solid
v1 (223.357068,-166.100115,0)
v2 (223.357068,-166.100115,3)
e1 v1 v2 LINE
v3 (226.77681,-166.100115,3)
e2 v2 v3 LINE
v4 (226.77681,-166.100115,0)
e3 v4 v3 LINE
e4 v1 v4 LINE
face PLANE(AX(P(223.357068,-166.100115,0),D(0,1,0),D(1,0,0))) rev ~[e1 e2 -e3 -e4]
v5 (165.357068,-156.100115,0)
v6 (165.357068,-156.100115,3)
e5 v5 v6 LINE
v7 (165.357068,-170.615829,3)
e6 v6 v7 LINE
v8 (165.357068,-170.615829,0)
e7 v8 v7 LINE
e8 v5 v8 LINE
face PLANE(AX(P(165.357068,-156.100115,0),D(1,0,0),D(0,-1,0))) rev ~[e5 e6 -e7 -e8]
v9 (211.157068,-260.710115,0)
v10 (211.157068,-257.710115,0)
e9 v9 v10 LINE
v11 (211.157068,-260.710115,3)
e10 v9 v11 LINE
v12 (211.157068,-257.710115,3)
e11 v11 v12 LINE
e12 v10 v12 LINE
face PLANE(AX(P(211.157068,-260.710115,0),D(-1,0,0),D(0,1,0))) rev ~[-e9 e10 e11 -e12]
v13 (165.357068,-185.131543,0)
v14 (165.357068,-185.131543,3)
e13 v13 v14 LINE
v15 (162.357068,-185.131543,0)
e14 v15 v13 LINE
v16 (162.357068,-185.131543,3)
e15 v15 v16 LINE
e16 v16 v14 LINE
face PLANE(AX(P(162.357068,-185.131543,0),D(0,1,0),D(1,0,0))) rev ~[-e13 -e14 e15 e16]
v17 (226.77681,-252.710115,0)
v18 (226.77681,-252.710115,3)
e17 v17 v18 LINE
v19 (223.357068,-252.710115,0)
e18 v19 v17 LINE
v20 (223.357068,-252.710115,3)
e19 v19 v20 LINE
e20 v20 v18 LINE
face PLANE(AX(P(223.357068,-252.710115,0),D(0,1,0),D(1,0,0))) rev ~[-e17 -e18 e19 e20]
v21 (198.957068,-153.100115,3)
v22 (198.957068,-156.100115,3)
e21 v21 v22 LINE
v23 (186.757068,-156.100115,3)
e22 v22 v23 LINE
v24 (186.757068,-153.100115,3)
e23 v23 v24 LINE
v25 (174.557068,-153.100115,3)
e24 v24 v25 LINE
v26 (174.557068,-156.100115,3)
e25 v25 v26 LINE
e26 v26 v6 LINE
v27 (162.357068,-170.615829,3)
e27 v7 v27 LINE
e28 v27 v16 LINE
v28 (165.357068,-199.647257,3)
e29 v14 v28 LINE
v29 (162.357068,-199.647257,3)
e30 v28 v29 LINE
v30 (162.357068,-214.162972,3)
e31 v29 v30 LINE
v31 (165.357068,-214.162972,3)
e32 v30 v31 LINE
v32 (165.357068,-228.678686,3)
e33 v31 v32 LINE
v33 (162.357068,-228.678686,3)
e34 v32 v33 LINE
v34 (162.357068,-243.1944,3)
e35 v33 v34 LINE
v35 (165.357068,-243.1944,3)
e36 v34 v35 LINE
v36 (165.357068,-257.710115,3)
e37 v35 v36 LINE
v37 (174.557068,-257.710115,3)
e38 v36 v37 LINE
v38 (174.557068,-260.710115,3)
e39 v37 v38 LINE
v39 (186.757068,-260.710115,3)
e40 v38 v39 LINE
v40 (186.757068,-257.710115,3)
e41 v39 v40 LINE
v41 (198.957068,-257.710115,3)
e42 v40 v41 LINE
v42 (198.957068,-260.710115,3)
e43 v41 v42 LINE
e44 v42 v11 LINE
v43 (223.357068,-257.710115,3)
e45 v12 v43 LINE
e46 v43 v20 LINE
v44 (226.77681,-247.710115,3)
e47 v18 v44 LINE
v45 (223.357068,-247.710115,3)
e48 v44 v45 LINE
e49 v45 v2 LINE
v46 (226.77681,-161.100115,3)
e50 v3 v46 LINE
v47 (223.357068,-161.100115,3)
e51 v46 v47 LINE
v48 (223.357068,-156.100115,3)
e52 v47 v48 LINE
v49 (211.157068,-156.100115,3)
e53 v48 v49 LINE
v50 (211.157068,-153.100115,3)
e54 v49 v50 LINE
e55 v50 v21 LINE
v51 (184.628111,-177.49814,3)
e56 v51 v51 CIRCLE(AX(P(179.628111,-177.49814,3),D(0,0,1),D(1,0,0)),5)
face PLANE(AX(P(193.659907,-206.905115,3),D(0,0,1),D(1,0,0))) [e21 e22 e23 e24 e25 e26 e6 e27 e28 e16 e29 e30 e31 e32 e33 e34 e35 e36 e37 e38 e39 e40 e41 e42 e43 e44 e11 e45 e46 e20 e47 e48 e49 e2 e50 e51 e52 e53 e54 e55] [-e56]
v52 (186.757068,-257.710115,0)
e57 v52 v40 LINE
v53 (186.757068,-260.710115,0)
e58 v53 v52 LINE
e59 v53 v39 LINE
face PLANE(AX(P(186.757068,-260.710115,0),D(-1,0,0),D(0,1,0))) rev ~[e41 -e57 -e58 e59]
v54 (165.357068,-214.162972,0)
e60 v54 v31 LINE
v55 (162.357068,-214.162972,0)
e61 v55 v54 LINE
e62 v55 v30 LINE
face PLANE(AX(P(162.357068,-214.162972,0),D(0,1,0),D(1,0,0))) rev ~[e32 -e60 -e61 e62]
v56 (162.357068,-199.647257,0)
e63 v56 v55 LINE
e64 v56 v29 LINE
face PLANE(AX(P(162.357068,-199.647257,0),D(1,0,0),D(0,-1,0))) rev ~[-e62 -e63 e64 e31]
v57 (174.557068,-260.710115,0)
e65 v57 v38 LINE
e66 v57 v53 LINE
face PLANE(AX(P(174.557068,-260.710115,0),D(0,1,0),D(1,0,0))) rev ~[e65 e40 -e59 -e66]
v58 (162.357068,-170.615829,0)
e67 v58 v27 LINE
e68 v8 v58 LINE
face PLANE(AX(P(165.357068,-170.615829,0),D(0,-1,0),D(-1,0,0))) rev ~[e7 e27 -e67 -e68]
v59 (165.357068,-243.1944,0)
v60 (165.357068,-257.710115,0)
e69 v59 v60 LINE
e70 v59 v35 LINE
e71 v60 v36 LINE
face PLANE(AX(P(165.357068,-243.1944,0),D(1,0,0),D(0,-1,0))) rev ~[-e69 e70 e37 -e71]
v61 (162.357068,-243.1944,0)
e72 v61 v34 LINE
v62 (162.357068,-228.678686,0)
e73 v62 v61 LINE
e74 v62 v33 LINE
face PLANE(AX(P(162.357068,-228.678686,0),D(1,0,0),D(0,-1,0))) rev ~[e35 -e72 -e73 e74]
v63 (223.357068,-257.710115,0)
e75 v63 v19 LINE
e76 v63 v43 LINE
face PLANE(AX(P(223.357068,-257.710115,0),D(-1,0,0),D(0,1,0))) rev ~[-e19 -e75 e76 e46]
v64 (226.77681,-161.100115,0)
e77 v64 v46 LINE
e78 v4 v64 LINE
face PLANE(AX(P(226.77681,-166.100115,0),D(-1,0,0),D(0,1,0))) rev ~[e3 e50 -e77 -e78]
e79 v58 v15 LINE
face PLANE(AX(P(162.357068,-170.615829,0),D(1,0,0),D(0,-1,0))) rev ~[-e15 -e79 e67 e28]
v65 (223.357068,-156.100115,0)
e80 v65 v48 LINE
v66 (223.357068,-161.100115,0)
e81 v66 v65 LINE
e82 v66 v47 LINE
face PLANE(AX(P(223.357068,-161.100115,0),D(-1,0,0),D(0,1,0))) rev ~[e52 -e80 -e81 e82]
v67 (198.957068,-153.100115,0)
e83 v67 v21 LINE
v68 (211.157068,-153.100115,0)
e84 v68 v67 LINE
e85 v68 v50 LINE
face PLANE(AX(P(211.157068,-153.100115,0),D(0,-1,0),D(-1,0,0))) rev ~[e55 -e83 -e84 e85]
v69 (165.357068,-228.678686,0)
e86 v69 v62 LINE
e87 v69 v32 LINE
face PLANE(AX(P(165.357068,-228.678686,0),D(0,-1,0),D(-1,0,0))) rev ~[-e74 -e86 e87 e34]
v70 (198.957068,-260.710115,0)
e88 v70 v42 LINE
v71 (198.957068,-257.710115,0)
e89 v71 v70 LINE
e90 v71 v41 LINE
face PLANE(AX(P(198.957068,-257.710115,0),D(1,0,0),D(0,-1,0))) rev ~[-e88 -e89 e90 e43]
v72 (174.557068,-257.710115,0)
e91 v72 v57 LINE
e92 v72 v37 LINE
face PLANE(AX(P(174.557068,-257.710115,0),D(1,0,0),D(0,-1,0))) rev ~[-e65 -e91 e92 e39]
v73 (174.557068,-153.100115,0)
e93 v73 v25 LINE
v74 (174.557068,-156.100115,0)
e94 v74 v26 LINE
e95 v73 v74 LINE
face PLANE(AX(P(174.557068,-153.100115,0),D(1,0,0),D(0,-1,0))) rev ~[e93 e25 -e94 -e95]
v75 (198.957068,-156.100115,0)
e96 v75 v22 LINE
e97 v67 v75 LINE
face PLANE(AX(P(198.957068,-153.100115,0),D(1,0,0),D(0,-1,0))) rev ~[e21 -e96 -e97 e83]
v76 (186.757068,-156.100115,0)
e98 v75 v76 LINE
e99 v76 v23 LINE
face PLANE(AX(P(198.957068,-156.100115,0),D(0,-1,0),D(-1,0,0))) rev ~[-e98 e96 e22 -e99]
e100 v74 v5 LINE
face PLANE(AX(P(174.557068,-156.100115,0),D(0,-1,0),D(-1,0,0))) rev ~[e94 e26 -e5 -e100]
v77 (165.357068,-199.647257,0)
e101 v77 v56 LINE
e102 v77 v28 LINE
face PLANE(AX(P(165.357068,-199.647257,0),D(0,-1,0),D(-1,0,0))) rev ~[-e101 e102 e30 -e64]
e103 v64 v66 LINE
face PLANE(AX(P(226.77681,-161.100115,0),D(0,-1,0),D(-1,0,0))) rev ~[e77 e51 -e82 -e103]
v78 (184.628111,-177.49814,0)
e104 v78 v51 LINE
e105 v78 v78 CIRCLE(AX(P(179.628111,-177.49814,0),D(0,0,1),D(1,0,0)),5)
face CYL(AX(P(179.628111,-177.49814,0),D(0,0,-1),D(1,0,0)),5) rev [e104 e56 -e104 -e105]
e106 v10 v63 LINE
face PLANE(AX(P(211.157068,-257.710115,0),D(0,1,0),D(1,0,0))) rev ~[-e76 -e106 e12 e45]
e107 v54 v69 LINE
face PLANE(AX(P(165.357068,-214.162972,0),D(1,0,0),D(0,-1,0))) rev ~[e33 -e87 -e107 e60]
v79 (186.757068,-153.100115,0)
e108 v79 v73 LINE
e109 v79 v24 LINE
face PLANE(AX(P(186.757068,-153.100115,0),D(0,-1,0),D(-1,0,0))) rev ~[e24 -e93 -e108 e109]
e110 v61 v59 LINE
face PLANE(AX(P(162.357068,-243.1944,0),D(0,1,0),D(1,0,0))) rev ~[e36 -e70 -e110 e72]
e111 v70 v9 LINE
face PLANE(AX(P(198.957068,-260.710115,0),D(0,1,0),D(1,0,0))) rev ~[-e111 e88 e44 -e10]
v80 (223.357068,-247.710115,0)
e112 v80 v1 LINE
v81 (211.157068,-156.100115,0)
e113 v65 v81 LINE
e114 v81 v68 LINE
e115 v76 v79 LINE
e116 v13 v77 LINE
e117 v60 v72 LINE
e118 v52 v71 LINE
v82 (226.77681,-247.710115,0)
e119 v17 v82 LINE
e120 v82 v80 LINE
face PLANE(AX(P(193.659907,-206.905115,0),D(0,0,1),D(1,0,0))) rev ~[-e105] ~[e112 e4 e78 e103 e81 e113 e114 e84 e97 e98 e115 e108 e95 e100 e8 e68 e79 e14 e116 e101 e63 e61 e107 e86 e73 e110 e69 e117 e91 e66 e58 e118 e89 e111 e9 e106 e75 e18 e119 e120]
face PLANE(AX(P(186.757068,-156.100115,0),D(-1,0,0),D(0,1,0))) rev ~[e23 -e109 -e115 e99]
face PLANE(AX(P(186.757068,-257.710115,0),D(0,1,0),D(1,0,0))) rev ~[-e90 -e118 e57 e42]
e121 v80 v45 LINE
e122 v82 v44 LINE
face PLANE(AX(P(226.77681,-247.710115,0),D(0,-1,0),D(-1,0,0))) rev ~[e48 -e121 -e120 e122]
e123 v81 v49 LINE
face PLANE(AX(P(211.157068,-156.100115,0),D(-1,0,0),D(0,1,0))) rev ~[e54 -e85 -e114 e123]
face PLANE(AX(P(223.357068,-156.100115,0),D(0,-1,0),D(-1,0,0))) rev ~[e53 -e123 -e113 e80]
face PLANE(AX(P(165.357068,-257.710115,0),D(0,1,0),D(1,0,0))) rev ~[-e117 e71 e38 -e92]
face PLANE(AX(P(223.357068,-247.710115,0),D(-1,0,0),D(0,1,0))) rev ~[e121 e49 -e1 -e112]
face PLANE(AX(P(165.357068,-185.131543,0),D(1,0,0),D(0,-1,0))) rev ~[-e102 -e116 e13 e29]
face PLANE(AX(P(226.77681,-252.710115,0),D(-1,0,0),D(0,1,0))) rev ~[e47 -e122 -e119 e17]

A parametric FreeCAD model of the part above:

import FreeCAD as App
import Part
import Sketcher

V = App.Vector
Q = App.Units.Quantity

doc = App.newDocument("Part")
body = doc.addObject("PartDesign::Body", "Body")

# Sketch on XY plane
sketch1 = body.newObject("Sketcher::SketchObject", "Sketch")
sketch1.AttachmentSupport = (doc.getObject("XY_Plane"), [""])
sketch1.MapMode = "FlatFace"
sketch1.addGeometry([
    Part.LineSegment(V(174.557068, -156.100115, 0), V(165.357068, -156.100115, 0)),  # 0
    Part.LineSegment(V(165.357068, -156.100115, 0), V(165.357068, -170.615829, 0)),  # 1
    Part.LineSegment(V(165.357068, -170.615829, 0), V(162.357068, -170.615829, 0)),  # 2
    Part.LineSegment(V(162.357068, -170.615829, 0), V(162.357068, -185.131543, 0)),  # 3
    Part.LineSegment(V(162.357068, -185.131543, 0), V(165.357068, -185.131543, 0)),  # 4
    Part.LineSegment(V(165.357068, -185.131543, 0), V(165.357068, -199.647257, 0)),  # 5
    Part.LineSegment(V(165.357068, -199.647257, 0), V(162.357068, -199.647257, 0)),  # 6
    Part.LineSegment(V(162.357068, -199.647257, 0), V(162.357068, -214.162972, 0)),  # 7
    Part.LineSegment(V(162.357068, -214.162972, 0), V(165.357068, -214.162972, 0)),  # 8
    Part.LineSegment(V(165.357068, -214.162972, 0), V(165.357068, -228.678686, 0)),  # 9
    Part.LineSegment(V(165.357068, -228.678686, 0), V(162.357068, -228.678686, 0)),  # 10
    Part.LineSegment(V(162.357068, -228.678686, 0), V(162.357068, -243.1944, 0)),  # 11
    Part.LineSegment(V(162.357068, -243.1944, 0), V(165.357068, -243.1944, 0)),  # 12
    Part.LineSegment(V(165.357068, -243.1944, 0), V(165.357068, -257.710115, 0)),  # 13
    Part.LineSegment(V(165.357068, -257.710115, 0), V(174.557068, -257.710115, 0)),  # 14
    Part.LineSegment(V(174.557068, -257.710115, 0), V(174.557068, -260.710115, 0)),  # 15
    Part.LineSegment(V(174.557068, -260.710115, 0), V(186.757068, -260.710115, 0)),  # 16
    Part.LineSegment(V(186.757068, -260.710115, 0), V(186.757068, -257.710115, 0)),  # 17
    Part.LineSegment(V(186.757068, -257.710115, 0), V(198.957068, -257.710115, 0)),  # 18
    Part.LineSegment(V(198.957068, -257.710115, 0), V(198.957068, -260.710115, 0)),  # 19
    Part.LineSegment(V(198.957068, -260.710115, 0), V(211.157068, -260.710115, 0)),  # 20
    Part.LineSegment(V(211.157068, -260.710115, 0), V(211.157068, -257.710115, 0)),  # 21
    Part.LineSegment(V(211.157068, -257.710115, 0), V(223.357068, -257.710115, 0)),  # 22
    Part.LineSegment(V(223.357068, -257.710115, 0), V(223.357068, -252.710115, 0)),  # 23
    Part.LineSegment(V(223.357068, -252.710115, 0), V(226.77681, -252.710115, 0)),  # 24
    Part.LineSegment(V(226.77681, -252.710115, 0), V(226.77681, -247.710115, 0)),  # 25
    Part.LineSegment(V(226.77681, -247.710115, 0), V(223.357068, -247.710115, 0)),  # 26
    Part.LineSegment(V(223.357068, -247.710115, 0), V(223.357068, -166.100115, 0)),  # 27
    Part.LineSegment(V(223.357068, -166.100115, 0), V(226.77681, -166.100115, 0)),  # 28
    Part.LineSegment(V(226.77681, -166.100115, 0), V(226.77681, -161.100115, 0)),  # 29
    Part.LineSegment(V(226.77681, -161.100115, 0), V(223.357068, -161.100115, 0)),  # 30
    Part.LineSegment(V(223.357068, -161.100115, 0), V(223.357068, -156.100115, 0)),  # 31
    Part.LineSegment(V(223.357068, -156.100115, 0), V(211.157068, -156.100115, 0)),  # 32
    Part.LineSegment(V(211.157068, -156.100115, 0), V(211.157068, -153.100115, 0)),  # 33
    Part.LineSegment(V(211.157068, -153.100115, 0), V(198.957068, -153.100115, 0)),  # 34
    Part.LineSegment(V(198.957068, -153.100115, 0), V(198.957068, -156.100115, 0)),  # 35
    Part.LineSegment(V(198.957068, -156.100115, 0), V(186.757068, -156.100115, 0)),  # 36
    Part.LineSegment(V(186.757068, -156.100115, 0), V(186.757068, -153.100115, 0)),  # 37
    Part.LineSegment(V(186.757068, -153.100115, 0), V(174.557068, -153.100115, 0)),  # 38
    Part.LineSegment(V(174.557068, -153.100115, 0), V(174.557068, -156.100115, 0)),  # 39
    Part.Circle(V(179.628111, -177.49814, 0), V(0, 0, 1), 5),  # 40
], False)
sketch1.addConstraint([
    Sketcher.Constraint("Coincident", 0, 2, 1, 1),
    Sketcher.Constraint("Coincident", 1, 2, 2, 1),
    Sketcher.Constraint("Coincident", 2, 2, 3, 1),
    Sketcher.Constraint("Coincident", 3, 2, 4, 1),
    Sketcher.Constraint("Coincident", 4, 2, 5, 1),
    Sketcher.Constraint("Coincident", 5, 2, 6, 1),
    Sketcher.Constraint("Coincident", 6, 2, 7, 1),
    Sketcher.Constraint("Coincident", 7, 2, 8, 1),
    Sketcher.Constraint("Coincident", 8, 2, 9, 1),
    Sketcher.Constraint("Coincident", 9, 2, 10, 1),
    Sketcher.Constraint("Coincident", 10, 2, 11, 1),
    Sketcher.Constraint("Coincident", 11, 2, 12, 1),
    Sketcher.Constraint("Coincident", 12, 2, 13, 1),
    Sketcher.Constraint("Coincident", 13, 2, 14, 1),
    Sketcher.Constraint("Coincident", 14, 2, 15, 1),
    Sketcher.Constraint("Coincident", 15, 2, 16, 1),
    Sketcher.Constraint("Coincident", 16, 2, 17, 1),
    Sketcher.Constraint("Coincident", 17, 2, 18, 1),
    Sketcher.Constraint("Coincident", 18, 2, 19, 1),
    Sketcher.Constraint("Coincident", 19, 2, 20, 1),
    Sketcher.Constraint("Coincident", 20, 2, 21, 1),
    Sketcher.Constraint("Coincident", 21, 2, 22, 1),
    Sketcher.Constraint("Coincident", 22, 2, 23, 1),
    Sketcher.Constraint("Coincident", 23, 2, 24, 1),
    Sketcher.Constraint("Coincident", 24, 2, 25, 1),
    Sketcher.Constraint("Coincident", 25, 2, 26, 1),
    Sketcher.Constraint("Coincident", 26, 2, 27, 1),
    Sketcher.Constraint("Coincident", 27, 2, 28, 1),
    Sketcher.Constraint("Coincident", 28, 2, 29, 1),
    Sketcher.Constraint("Coincident", 29, 2, 30, 1),
    Sketcher.Constraint("Coincident", 30, 2, 31, 1),
    Sketcher.Constraint("Coincident", 31, 2, 32, 1),
    Sketcher.Constraint("Coincident", 32, 2, 33, 1),
    Sketcher.Constraint("Coincident", 33, 2, 34, 1),
    Sketcher.Constraint("Coincident", 34, 2, 35, 1),
    Sketcher.Constraint("Coincident", 35, 2, 36, 1),
    Sketcher.Constraint("Coincident", 36, 2, 37, 1),
    Sketcher.Constraint("Coincident", 37, 2, 38, 1),
    Sketcher.Constraint("Coincident", 38, 2, 39, 1),
    Sketcher.Constraint("Coincident", 39, 2, 0, 1),
    Sketcher.Constraint("Horizontal", 0),
    Sketcher.Constraint("Vertical", 1),
    Sketcher.Constraint("Horizontal", 2),
    Sketcher.Constraint("Vertical", 3),
    Sketcher.Constraint("Horizontal", 4),
    Sketcher.Constraint("Vertical", 5),
    Sketcher.Constraint("Horizontal", 6),
    Sketcher.Constraint("Vertical", 7),
    Sketcher.Constraint("Horizontal", 8),
    Sketcher.Constraint("Vertical", 9),
    Sketcher.Constraint("Horizontal", 10),
    Sketcher.Constraint("Vertical", 11),
    Sketcher.Constraint("Horizontal", 12),
    Sketcher.Constraint("Vertical", 13),
    Sketcher.Constraint("Horizontal", 14),
    Sketcher.Constraint("Vertical", 15),
    Sketcher.Constraint("Horizontal", 16),
    Sketcher.Constraint("Vertical", 17),
    Sketcher.Constraint("Horizontal", 18),
    Sketcher.Constraint("Vertical", 19),
    Sketcher.Constraint("Horizontal", 20),
    Sketcher.Constraint("Vertical", 21),
    Sketcher.Constraint("Horizontal", 22),
    Sketcher.Constraint("Vertical", 23),
    Sketcher.Constraint("Horizontal", 24),
    Sketcher.Constraint("Vertical", 25),
    Sketcher.Constraint("Horizontal", 26),
    Sketcher.Constraint("Vertical", 27),
    Sketcher.Constraint("Horizontal", 28),
    Sketcher.Constraint("Vertical", 29),
    Sketcher.Constraint("Horizontal", 30),
    Sketcher.Constraint("Vertical", 31),
    Sketcher.Constraint("Horizontal", 32),
    Sketcher.Constraint("Vertical", 33),
    Sketcher.Constraint("Horizontal", 34),
    Sketcher.Constraint("Vertical", 35),
    Sketcher.Constraint("Horizontal", 36),
    Sketcher.Constraint("Vertical", 37),
    Sketcher.Constraint("Horizontal", 38),
    Sketcher.Constraint("Vertical", 39),
    Sketcher.Constraint("Horizontal", 14, 2, 17, 2),
    Sketcher.Constraint("Horizontal", 16, 2, 19, 2),
    Sketcher.Constraint("Horizontal", 18, 2, 21, 2),
    Sketcher.Constraint("Horizontal", 0, 2, 31, 2),
    Sketcher.Constraint("Horizontal", 32, 2, 35, 2),
    Sketcher.Constraint("Horizontal", 34, 2, 37, 2),
    Sketcher.Constraint("Vertical", 1, 2, 4, 2),
    Sketcher.Constraint("Vertical", 3, 2, 6, 2),
    Sketcher.Constraint("Vertical", 5, 2, 8, 2),
    Sketcher.Constraint("Vertical", 7, 2, 10, 2),
    Sketcher.Constraint("Vertical", 9, 2, 12, 2),
    Sketcher.Constraint("Vertical", 23, 2, 26, 2),
    Sketcher.Constraint("Vertical", 25, 2, 28, 2),
    Sketcher.Constraint("Vertical", 27, 2, 30, 2),
    Sketcher.Constraint("Vertical", 21, 2, 32, 2),
    Sketcher.Constraint("Vertical", 19, 2, 34, 2),
    Sketcher.Constraint("Vertical", 17, 2, 36, 2),
    Sketcher.Constraint("Vertical", 15, 2, 38, 2),
    Sketcher.Constraint("Equal", 16, 18),
    Sketcher.Constraint("Equal", 18, 20),
    Sketcher.Constraint("Equal", 20, 22),
    Sketcher.Constraint("Equal", 1, 3),
    Sketcher.Constraint("Equal", 3, 5),
    Sketcher.Constraint("Equal", 5, 7),
    Sketcher.Constraint("Equal", 7, 9),
    Sketcher.Constraint("Equal", 9, 11),
    Sketcher.Constraint("Equal", 11, 13),
    Sketcher.Constraint("Equal", 12, 15),
    Sketcher.Constraint("Equal", 23, 25),
    Sketcher.Constraint("Equal", 25, 29),
    Sketcher.Constraint("Equal", 29, 31),
    Sketcher.Constraint("Equal", 21, 33),
    Sketcher.Constraint("Diameter", 40, Q("10 mm")),
    Sketcher.Constraint("DistanceX", 2, 2, 2, 1, Q("3 mm")),
    Sketcher.Constraint("DistanceY", 23, 1, 23, 2, Q("5 mm")),
    Sketcher.Constraint("DistanceX", 0, 2, 0, 1, Q("9.2 mm")),
    Sketcher.Constraint("DistanceX", 16, 1, 16, 2, Q("12.2 mm")),
    Sketcher.Constraint("DistanceY", 27, 1, 27, 2, Q("81.61 mm")),
    Sketcher.Constraint("DistanceX", 24, 1, 24, 2, Q("3.419742 mm")),
    Sketcher.Constraint("DistanceY", 11, 2, -1, 1, Q("243.1944 mm")),
    Sketcher.Constraint("DistanceX", 40, 3, 28, 2, Q("47.148699 mm")),
    Sketcher.Constraint("DistanceX", -1, 1, 40, 3, Q("179.628111 mm")),
    Sketcher.Constraint("DistanceY", 40, 3, -1, 1, Q("177.49814 mm")),
])
pad1 = body.newObject("PartDesign::Pad", "Pad")
pad1.Profile = sketch1
pad1.Length = 3

doc.recompute()
